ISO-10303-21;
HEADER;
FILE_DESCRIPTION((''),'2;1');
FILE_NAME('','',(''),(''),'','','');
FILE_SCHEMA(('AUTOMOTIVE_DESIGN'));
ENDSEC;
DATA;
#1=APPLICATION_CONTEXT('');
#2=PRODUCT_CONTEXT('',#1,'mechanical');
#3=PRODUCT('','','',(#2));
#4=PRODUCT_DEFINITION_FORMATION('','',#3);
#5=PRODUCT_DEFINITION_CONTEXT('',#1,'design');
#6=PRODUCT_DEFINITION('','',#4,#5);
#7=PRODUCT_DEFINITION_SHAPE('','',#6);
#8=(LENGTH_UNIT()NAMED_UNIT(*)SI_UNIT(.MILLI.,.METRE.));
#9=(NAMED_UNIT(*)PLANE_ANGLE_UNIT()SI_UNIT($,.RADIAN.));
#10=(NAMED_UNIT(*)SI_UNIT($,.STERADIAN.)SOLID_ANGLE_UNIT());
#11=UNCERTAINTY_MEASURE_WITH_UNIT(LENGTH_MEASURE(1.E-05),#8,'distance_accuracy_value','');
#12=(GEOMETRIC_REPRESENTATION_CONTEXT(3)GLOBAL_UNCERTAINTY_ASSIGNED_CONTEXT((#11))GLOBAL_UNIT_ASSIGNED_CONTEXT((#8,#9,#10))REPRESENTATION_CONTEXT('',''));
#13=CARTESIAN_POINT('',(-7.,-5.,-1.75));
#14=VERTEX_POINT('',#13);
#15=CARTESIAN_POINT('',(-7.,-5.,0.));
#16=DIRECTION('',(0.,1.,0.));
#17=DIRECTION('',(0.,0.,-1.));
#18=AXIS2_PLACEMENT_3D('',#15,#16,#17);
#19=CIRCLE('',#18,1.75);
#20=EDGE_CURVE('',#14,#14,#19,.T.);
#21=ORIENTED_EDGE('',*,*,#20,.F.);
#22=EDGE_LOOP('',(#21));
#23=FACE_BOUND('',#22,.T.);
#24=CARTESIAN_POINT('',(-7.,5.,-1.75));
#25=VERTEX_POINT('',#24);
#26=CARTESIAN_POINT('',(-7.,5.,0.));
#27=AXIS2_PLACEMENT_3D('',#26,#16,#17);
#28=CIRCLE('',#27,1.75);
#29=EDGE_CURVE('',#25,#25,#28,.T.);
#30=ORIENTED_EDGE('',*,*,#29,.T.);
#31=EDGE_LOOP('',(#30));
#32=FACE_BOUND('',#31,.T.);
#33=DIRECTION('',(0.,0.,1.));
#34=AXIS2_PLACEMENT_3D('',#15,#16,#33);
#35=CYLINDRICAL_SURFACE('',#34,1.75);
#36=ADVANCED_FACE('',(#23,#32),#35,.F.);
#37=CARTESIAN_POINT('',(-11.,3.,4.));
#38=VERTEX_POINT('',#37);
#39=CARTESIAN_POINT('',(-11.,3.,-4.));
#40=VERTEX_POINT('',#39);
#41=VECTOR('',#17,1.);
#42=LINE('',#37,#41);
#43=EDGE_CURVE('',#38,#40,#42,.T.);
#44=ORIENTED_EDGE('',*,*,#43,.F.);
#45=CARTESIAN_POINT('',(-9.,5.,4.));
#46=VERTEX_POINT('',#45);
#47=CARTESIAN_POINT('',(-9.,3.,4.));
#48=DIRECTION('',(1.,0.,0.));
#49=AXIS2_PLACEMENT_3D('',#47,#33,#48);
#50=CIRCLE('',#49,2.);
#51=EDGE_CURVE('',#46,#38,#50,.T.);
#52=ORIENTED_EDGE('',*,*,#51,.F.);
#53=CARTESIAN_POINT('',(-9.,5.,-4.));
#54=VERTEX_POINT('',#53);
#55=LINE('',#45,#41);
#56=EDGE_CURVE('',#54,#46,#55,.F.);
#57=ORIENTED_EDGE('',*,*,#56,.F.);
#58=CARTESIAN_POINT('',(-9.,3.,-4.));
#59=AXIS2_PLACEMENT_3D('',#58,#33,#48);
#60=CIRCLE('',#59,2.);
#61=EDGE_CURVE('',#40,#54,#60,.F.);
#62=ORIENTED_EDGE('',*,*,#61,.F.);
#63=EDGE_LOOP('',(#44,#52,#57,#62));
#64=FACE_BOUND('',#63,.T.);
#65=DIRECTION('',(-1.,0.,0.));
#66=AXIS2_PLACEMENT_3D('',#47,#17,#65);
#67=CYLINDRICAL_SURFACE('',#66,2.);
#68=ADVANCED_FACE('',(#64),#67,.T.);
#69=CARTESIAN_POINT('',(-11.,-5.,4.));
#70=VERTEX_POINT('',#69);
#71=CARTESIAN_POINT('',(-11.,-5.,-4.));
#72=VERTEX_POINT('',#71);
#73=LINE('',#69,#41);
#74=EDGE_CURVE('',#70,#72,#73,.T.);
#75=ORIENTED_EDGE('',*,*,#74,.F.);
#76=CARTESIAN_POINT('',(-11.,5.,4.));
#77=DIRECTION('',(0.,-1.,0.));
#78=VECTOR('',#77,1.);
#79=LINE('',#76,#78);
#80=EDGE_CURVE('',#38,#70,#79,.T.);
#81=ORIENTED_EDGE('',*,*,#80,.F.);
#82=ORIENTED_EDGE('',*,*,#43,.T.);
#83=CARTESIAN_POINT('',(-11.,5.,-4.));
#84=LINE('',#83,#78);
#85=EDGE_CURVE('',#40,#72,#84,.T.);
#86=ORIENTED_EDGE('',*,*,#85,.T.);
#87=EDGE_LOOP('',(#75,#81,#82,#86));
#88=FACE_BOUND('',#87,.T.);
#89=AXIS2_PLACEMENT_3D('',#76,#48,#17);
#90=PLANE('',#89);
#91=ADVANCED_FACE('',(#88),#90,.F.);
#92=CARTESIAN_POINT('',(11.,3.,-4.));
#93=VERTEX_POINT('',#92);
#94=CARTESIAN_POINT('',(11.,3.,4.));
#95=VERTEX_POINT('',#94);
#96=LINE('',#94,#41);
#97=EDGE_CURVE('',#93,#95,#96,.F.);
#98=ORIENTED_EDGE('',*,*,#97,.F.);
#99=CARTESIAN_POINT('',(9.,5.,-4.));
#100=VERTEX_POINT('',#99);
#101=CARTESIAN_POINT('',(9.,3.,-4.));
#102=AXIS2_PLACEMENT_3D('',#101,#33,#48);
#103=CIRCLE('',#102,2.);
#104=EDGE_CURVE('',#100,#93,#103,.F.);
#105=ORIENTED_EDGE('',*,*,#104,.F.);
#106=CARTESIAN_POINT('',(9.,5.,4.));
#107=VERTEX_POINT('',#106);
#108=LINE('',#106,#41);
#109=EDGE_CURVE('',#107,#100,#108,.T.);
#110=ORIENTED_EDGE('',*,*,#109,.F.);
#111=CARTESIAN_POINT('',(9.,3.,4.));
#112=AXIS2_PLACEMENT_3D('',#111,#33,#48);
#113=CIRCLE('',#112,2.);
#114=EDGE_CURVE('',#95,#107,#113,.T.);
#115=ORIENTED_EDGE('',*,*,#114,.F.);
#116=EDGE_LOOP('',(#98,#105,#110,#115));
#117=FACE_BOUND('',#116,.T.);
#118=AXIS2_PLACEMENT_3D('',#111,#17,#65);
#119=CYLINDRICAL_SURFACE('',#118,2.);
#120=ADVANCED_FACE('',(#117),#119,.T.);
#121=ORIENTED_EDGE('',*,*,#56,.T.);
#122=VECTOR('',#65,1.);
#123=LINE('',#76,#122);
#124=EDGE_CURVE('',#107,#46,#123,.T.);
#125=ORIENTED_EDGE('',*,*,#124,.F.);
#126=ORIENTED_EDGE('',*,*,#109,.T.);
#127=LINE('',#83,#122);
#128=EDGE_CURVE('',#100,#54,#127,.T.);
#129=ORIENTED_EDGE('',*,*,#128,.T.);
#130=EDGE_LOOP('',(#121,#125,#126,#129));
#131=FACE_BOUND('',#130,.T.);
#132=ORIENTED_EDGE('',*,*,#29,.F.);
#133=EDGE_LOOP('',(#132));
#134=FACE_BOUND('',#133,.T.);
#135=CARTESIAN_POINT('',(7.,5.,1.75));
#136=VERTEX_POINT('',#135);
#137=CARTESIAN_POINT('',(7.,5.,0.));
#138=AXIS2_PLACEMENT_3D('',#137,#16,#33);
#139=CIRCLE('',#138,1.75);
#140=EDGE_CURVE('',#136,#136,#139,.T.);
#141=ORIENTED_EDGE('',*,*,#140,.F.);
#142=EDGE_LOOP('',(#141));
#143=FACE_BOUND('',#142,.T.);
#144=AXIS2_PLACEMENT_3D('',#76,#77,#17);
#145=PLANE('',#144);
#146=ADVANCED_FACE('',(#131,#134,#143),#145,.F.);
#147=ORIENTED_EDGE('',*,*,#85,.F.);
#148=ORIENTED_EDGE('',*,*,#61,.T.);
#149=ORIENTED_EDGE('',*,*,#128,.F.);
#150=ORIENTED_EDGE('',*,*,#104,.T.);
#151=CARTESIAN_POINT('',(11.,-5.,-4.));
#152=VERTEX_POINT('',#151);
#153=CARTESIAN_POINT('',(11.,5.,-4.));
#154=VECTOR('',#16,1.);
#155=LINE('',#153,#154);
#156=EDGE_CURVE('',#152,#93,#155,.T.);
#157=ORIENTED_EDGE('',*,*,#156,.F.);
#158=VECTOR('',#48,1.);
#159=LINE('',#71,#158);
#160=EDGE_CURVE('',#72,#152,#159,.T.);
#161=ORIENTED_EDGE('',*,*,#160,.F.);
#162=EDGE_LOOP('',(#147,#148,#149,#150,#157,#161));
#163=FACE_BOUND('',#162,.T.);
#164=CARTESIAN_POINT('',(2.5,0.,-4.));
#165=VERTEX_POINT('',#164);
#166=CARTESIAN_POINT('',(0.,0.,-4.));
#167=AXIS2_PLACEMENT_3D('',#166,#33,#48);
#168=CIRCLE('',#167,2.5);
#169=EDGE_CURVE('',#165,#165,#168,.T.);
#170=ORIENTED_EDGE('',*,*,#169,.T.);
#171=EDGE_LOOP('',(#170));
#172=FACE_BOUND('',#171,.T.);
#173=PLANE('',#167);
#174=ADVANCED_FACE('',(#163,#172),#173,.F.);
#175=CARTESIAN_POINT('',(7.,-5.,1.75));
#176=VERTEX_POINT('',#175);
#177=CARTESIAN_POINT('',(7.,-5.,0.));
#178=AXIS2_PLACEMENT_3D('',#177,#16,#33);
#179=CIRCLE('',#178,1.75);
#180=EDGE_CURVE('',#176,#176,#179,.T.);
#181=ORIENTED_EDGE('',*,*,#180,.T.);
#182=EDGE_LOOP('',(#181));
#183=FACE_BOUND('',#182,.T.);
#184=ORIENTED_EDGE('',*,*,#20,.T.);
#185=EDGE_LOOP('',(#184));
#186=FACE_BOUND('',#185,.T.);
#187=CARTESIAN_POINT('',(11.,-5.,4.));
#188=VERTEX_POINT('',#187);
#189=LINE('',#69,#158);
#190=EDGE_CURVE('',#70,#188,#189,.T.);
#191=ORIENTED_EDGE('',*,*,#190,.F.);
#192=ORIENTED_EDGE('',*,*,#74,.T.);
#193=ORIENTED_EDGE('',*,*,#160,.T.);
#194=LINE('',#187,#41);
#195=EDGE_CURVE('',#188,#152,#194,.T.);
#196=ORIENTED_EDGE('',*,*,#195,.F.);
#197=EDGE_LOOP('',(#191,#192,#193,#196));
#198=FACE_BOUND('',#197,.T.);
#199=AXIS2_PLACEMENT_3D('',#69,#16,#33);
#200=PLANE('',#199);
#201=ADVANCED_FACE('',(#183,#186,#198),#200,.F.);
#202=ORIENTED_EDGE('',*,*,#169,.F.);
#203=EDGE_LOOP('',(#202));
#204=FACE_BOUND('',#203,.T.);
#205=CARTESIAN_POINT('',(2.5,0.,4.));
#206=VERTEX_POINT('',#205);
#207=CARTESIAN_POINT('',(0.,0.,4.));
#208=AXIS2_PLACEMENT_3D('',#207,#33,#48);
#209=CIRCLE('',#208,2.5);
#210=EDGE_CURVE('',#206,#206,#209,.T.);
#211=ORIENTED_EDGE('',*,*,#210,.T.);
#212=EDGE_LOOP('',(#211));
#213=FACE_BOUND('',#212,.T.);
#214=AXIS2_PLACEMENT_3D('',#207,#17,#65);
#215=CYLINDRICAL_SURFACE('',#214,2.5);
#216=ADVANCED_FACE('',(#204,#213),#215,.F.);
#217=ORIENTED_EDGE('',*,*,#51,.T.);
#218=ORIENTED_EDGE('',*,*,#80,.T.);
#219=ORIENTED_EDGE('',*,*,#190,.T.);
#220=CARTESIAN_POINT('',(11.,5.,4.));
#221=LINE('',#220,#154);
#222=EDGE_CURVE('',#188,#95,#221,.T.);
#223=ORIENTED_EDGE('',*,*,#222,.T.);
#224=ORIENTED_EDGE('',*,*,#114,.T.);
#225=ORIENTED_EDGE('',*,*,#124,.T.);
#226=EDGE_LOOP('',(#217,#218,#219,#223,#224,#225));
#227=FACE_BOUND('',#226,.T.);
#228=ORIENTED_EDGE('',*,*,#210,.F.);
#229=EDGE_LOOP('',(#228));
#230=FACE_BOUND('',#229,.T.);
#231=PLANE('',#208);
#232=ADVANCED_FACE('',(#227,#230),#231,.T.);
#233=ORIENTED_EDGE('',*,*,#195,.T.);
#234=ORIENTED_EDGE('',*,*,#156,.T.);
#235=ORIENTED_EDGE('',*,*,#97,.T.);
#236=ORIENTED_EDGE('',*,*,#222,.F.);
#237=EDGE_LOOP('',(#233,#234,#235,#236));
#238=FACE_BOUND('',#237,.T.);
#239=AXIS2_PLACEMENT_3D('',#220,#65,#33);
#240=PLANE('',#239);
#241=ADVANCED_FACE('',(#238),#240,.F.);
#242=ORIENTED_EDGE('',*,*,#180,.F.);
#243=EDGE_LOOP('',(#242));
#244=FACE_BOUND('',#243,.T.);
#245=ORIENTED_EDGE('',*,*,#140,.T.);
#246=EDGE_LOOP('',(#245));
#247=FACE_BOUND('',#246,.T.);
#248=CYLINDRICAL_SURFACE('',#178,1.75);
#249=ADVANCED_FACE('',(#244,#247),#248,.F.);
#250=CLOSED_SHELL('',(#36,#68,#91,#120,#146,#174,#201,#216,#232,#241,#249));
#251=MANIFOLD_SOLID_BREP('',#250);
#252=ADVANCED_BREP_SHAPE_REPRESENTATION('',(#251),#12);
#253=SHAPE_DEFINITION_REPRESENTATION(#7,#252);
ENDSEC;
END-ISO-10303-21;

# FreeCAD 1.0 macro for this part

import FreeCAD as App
import Part
import Sketcher
Q = App.Units.Quantity


def edges_at(feature, points):
    """Names of the edges that pass closest to the given points."""
    edges = feature.Shape.Edges
    near = lambda p: min(range(len(edges)), key=lambda i: edges[i].distToShape(Part.Vertex(*p))[0])
    return sorted({f"Edge{near(p) + 1}" for p in points})

doc = App.newDocument("Part")
params = doc.addObject("Spreadsheet::Sheet", "Params")
for row, (alias, value) in enumerate([
    ("sketch1_diameter", "5 mm"),
    ("sketch1_width", "22 mm"),
    ("sketch1_height", "10 mm"),
    ("pad1_length", "8 mm"),
    ("sketch2_diameter", "3.5 mm"),
    ("fillet_radius", "2 mm"),
], start=1):
    params.set(f"A{row}", alias)
    params.set(f"B{row}", "=" + value)
    params.setAlias(f"B{row}", alias)

body = doc.addObject("PartDesign::Body", "Body")

# Sketch on XY plane
sketch1 = doc.addObject("Sketcher::SketchObject", "Sketch")
body.addObject(sketch1)
sketch1.AttachmentSupport = (doc.XY_Plane, [""])
sketch1.MapMode = "FlatFace"
sketch1.addGeometry(Part.LineSegment(App.Vector(-11, 5, 0), App.Vector(-11, -5, 0)), False)
sketch1.addGeometry(Part.LineSegment(App.Vector(-11, -5, 0), App.Vector(11, -5, 0)), False)
sketch1.addGeometry(Part.LineSegment(App.Vector(11, -5, 0), App.Vector(11, 5, 0)), False)
sketch1.addGeometry(Part.LineSegment(App.Vector(11, 5, 0), App.Vector(-11, 5, 0)), False)
sketch1.addGeometry(Part.Circle(App.Vector(0, 0, 0), App.Vector(0, 0, 1), 2.5), False)
sketch1.addConstraint(Sketcher.Constraint("Coincident", 0, 2, 1, 1))
sketch1.addConstraint(Sketcher.Constraint("Coincident", 1, 2, 2, 1))
sketch1.addConstraint(Sketcher.Constraint("Coincident", 2, 2, 3, 1))
sketch1.addConstraint(Sketcher.Constraint("Coincident", 3, 2, 0, 1))
sketch1.addConstraint(Sketcher.Constraint("Vertical", 0))
sketch1.addConstraint(Sketcher.Constraint("Horizontal", 1))
sketch1.addConstraint(Sketcher.Constraint("Vertical", 2))
sketch1.addConstraint(Sketcher.Constraint("Horizontal", 3))
sketch1.addConstraint(Sketcher.Constraint("Coincident", 4, 3, -1, 1))
sketch1.addConstraint(Sketcher.Constraint("Symmetric", 0, 2, 2, 2, -1, 1))
sketch1.addConstraint(Sketcher.Constraint("Diameter", 4, Q("5 mm")))
sketch1.addConstraint(Sketcher.Constraint("DistanceX", 1, 1, 1, 2, Q("22 mm")))
sketch1.addConstraint(Sketcher.Constraint("DistanceY", 0, 2, 0, 1, Q("10 mm")))
sketch1.setExpression("Constraints[10]", "Params.sketch1_diameter")
sketch1.setExpression("Constraints[11]", "Params.sketch1_width")
sketch1.setExpression("Constraints[12]", "Params.sketch1_height")
pad1 = doc.addObject("PartDesign::Pad", "Pad")
body.addObject(pad1)
pad1.Profile = sketch1
pad1.setExpression("Length", "Params.pad1_length")
pad1.Midplane = True

# Sketch on XZ plane
sketch2 = doc.addObject("Sketcher::SketchObject", "Sketch001")
body.addObject(sketch2)
sketch2.AttachmentSupport = (doc.XZ_Plane, [""])
sketch2.MapMode = "FlatFace"
sketch2.AttachmentOffset = App.Placement(App.Vector(0, 0, -5), App.Rotation())
sketch2.addGeometry(Part.Circle(App.Vector(7, 0, 0), App.Vector(0, 0, 1), 1.75), False)
sketch2.addGeometry(Part.Circle(App.Vector(-7, 0, 0), App.Vector(0, 0, 1), 1.75), False)
sketch2.addConstraint(Sketcher.Constraint("Equal", 0, 1))
sketch2.addConstraint(Sketcher.Constraint("Symmetric", 0, 3, 1, 3, -1, 1))
sketch2.addConstraint(Sketcher.Constraint("PointOnObject", 0, 3, -1))
sketch2.addConstraint(Sketcher.Constraint("Diameter", 0, Q("3.5 mm")))
sketch2.addConstraint(Sketcher.Constraint("DistanceX", -1, 1, 0, 3, Q("7 mm")))
sketch2.setExpression("Constraints[3]", "Params.sketch2_diameter")
pocket1 = doc.addObject("PartDesign::Pocket", "Pocket")
body.addObject(pocket1)
pocket1.Profile = sketch2
pocket1.Type = "ThroughAll"
pocket1.Reversed = True
doc.recompute()

fillet = doc.addObject("PartDesign::Fillet", "Fillet")
body.addObject(fillet)
fillet.Base = (pocket1, edges_at(pocket1, [(-11, 5, 0), (11, 5, 0)]))
fillet.setExpression("Radius", "Params.fillet_radius")

doc.recompute()
